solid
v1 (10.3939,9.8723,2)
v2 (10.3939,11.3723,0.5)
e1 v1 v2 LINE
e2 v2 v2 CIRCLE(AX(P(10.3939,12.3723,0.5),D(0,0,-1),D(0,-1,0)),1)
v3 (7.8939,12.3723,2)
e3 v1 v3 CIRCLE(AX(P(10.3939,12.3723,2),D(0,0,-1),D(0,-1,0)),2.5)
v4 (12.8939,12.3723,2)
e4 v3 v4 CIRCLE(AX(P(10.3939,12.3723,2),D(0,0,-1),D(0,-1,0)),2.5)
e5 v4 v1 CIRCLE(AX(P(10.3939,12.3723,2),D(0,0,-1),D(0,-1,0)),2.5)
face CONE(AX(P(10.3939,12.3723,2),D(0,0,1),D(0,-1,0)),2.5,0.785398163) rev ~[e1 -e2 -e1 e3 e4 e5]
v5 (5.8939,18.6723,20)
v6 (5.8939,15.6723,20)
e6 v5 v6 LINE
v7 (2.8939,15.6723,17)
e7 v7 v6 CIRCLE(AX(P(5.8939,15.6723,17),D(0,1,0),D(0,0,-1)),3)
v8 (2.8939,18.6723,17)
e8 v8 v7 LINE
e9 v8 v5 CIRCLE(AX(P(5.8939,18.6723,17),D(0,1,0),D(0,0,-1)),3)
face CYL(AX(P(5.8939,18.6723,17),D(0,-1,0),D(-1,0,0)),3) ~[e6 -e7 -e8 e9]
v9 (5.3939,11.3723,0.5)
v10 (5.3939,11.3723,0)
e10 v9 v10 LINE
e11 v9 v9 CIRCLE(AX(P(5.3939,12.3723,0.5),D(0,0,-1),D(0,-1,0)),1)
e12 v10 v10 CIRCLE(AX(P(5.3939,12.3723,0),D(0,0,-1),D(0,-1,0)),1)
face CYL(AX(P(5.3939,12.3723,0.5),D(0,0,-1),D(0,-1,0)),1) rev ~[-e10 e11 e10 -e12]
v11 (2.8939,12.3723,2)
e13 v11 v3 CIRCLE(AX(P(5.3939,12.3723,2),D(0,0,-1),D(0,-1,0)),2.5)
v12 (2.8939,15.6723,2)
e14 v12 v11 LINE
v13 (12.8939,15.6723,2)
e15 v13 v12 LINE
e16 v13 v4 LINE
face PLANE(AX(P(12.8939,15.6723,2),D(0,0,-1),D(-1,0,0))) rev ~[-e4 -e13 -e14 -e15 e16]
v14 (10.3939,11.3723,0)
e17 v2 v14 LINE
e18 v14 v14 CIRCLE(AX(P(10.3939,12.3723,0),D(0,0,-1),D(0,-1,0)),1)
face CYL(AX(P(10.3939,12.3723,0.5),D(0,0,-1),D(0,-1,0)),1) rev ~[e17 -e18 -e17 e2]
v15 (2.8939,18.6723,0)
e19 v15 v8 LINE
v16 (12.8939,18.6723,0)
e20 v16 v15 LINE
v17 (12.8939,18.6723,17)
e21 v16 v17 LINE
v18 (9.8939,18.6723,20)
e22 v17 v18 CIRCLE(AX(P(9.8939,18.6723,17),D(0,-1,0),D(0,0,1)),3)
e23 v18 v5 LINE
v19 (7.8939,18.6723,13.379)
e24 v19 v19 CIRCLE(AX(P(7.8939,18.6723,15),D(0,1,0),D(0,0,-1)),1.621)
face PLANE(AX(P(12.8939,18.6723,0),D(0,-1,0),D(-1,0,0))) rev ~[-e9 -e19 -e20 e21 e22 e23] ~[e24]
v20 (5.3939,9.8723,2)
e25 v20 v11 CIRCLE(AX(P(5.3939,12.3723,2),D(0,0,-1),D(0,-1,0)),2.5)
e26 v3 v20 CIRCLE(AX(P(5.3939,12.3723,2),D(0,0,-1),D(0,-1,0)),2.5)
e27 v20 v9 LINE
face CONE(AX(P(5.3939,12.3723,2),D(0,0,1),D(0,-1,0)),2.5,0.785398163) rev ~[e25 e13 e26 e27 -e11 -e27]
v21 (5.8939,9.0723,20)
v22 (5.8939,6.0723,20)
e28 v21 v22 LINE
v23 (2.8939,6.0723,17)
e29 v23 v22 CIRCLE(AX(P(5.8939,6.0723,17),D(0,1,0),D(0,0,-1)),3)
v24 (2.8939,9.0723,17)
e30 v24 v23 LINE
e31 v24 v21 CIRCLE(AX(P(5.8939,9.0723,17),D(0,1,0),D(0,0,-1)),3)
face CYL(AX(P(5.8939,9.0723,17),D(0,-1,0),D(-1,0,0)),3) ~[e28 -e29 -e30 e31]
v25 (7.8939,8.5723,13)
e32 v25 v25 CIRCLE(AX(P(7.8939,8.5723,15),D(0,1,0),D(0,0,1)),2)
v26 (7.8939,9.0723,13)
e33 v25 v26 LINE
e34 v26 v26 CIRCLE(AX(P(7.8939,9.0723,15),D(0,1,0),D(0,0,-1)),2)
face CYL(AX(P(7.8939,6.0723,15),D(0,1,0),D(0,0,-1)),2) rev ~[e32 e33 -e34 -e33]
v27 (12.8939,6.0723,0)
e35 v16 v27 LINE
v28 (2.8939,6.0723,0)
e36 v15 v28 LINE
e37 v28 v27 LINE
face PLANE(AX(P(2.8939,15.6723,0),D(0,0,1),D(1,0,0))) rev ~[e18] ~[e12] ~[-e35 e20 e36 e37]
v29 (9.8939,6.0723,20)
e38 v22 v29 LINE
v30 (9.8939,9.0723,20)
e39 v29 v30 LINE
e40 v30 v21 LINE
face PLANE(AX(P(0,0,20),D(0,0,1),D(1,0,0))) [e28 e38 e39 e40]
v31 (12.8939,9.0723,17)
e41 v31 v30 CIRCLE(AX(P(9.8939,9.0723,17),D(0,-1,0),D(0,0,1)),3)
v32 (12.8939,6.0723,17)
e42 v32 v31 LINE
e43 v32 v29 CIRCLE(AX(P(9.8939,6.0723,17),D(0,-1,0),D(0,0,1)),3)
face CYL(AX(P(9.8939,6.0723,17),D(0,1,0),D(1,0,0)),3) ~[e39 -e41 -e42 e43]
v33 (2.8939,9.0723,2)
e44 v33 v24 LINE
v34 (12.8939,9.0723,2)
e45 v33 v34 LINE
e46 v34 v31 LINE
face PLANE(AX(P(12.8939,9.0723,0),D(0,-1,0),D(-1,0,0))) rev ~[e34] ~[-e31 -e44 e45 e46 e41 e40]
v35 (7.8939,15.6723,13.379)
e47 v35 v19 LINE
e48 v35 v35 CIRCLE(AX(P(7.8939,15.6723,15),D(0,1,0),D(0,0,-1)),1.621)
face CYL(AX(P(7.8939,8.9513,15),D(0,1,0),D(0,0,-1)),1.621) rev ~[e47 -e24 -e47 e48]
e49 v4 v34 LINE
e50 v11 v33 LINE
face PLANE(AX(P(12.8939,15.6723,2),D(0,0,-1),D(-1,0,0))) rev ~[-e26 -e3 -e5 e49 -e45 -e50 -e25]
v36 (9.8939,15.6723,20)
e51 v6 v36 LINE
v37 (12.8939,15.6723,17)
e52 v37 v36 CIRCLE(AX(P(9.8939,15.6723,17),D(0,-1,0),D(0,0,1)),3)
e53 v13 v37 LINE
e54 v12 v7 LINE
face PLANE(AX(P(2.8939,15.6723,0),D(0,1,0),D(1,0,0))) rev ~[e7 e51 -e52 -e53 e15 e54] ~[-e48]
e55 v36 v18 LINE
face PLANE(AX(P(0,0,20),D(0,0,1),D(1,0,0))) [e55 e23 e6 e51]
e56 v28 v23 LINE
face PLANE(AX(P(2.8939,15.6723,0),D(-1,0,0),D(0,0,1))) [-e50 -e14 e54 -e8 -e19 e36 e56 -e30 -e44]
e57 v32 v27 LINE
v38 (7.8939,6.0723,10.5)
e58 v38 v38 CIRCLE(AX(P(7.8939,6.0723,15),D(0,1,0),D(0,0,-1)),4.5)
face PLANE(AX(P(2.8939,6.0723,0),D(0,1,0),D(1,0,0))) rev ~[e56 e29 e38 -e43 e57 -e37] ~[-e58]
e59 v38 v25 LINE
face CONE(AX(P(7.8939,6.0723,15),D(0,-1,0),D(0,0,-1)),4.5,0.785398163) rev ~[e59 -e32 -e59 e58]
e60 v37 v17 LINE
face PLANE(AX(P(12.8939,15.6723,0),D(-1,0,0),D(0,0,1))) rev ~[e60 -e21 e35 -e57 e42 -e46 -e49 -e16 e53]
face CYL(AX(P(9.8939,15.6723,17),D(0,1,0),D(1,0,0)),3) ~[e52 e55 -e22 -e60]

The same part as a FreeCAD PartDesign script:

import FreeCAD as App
import Part
import Sketcher


def edges_at(feature, points):
    """Names of the edges that pass closest to the given points."""
    edges = feature.Shape.Edges
    near = lambda p: min(range(len(edges)), key=lambda i: edges[i].distToShape(Part.Vertex(*p))[0])
    return sorted({f"Edge{near(p) + 1}" for p in points})

doc = App.newDocument("Part")
body = doc.addObject("PartDesign::Body", "Body")
body.AllowCompound = True

# Sketch on XY plane
sketch1 = doc.addObject("Sketcher::SketchObject", "Sketch")
body.addObject(sketch1)
sketch1.AttachmentSupport = (doc.XY_Plane, [""])
sketch1.MapMode = "FlatFace"
sketch1.addGeometry(Part.LineSegment(App.Vector(12.9, 15.7, 0), App.Vector(12.9, 18.7, 0)), False)
sketch1.addGeometry(Part.LineSegment(App.Vector(12.9, 18.7, 0), App.Vector(2.9, 18.7, 0)), False)
sketch1.addGeometry(Part.LineSegment(App.Vector(2.9, 18.7, 0), App.Vector(2.9, 15.7, 0)), False)
sketch1.addGeometry(Part.LineSegment(App.Vector(2.9, 15.7, 0), App.Vector(12.9, 15.7, 0)), False)
sketch1.addGeometry(Part.LineSegment(App.Vector(12.9, 6.1, 0), App.Vector(12.9, 9.1, 0)), False)
sketch1.addGeometry(Part.LineSegment(App.Vector(12.9, 9.1, 0), App.Vector(2.9, 9.1, 0)), False)
sketch1.addGeometry(Part.LineSegment(App.Vector(2.9, 9.1, 0), App.Vector(2.9, 6.1, 0)), False)
sketch1.addGeometry(Part.LineSegment(App.Vector(2.9, 6.1, 0), App.Vector(12.9, 6.1, 0)), False)
sketch1.addConstraint(Sketcher.Constraint("Coincident", 0, 2, 1, 1))
sketch1.addConstraint(Sketcher.Constraint("Coincident", 1, 2, 2, 1))
sketch1.addConstraint(Sketcher.Constraint("Coincident", 2, 2, 3, 1))
sketch1.addConstraint(Sketcher.Constraint("Coincident", 3, 2, 0, 1))
sketch1.addConstraint(Sketcher.Constraint("Coincident", 4, 2, 5, 1))
sketch1.addConstraint(Sketcher.Constraint("Coincident", 5, 2, 6, 1))
sketch1.addConstraint(Sketcher.Constraint("Coincident", 6, 2, 7, 1))
sketch1.addConstraint(Sketcher.Constraint("Coincident", 7, 2, 4, 1))
sketch1.addConstraint(Sketcher.Constraint("Vertical", 0))
sketch1.addConstraint(Sketcher.Constraint("Horizontal", 1))
sketch1.addConstraint(Sketcher.Constraint("Vertical", 2))
sketch1.addConstraint(Sketcher.Constraint("Horizontal", 3))
sketch1.addConstraint(Sketcher.Constraint("Vertical", 4))
sketch1.addConstraint(Sketcher.Constraint("Horizontal", 5))
sketch1.addConstraint(Sketcher.Constraint("Vertical", 6))
sketch1.addConstraint(Sketcher.Constraint("Horizontal", 7))
sketch1.addConstraint(Sketcher.Constraint("Vertical", 3, 2, 4, 2))
sketch1.addConstraint(Sketcher.Constraint("Vertical", 2, 2, 5, 2))
sketch1.addConstraint(Sketcher.Constraint("Equal", 2, 4))
sketch1.addConstraint(Sketcher.Constraint("DistanceX", 1, 2, 1, 1, 10.0))
sketch1.addConstraint(Sketcher.Constraint("DistanceY", 0, 1, 0, 2, 3.0))
sketch1.addConstraint(Sketcher.Constraint("DistanceY", 4, 2, 3, 2, 6.6))
sketch1.addConstraint(Sketcher.Constraint("DistanceX", -1, 1, 0, 2, 12.894))
sketch1.addConstraint(Sketcher.Constraint("DistanceY", -1, 1, 0, 2, 18.6723))
pad1 = doc.addObject("PartDesign::Pad", "Pad")
body.addObject(pad1)
pad1.Profile = sketch1
pad1.Length = 20
doc.recompute()

fillet = doc.addObject("PartDesign::Fillet", "Fillet")
body.addObject(fillet)
fillet.Base = (pad1, edges_at(pad1, [
    (12.894, 7.572, 20),
    (12.894, 17.172, 20),
    (2.894, 17.172, 20),
    (2.894, 7.572, 20),
]))
fillet.Radius = 3

# Sketch on XZ plane
sketch2 = doc.addObject("Sketcher::SketchObject", "Sketch001")
body.addObject(sketch2)
sketch2.AttachmentSupport = (doc.XZ_Plane, [""])
sketch2.MapMode = "FlatFace"
sketch2.AttachmentOffset = App.Placement(App.Vector(0, 0, -6.0723), App.Rotation())
sketch2.addGeometry(Part.Circle(App.Vector(7.9, 15, 0), App.Vector(0, 0, 1), 1.6), False)
sketch2.addConstraint(Sketcher.Constraint("Diameter", 0, 3.242))
sketch2.addConstraint(Sketcher.Constraint("DistanceY", -1, 1, 0, 3, 15.0))
sketch2.addConstraint(Sketcher.Constraint("DistanceX", -1, 1, 0, 3, 7.894))
doc.recompute()
hole = doc.addObject("PartDesign::Hole", "Hole")
body.addObject(hole)
hole.Profile = sketch2
hole.ThreadType = "None"
hole.Diameter = 3.242
hole.DepthType = "ThroughAll"
hole.HoleCutType = "Countersink"
hole.HoleCutDiameter = 9
hole.HoleCutCountersinkAngle = 90

# Sketch on XZ plane
sketch3 = doc.addObject("Sketcher::SketchObject", "Sketch002")
body.addObject(sketch3)
sketch3.AttachmentSupport = (doc.XZ_Plane, [""])
sketch3.MapMode = "FlatFace"
sketch3.AttachmentOffset = App.Placement(App.Vector(0, 0, -15.6723), App.Rotation())
sketch3.addGeometry(Part.LineSegment(App.Vector(2.9, 2, 0), App.Vector(2.9, 0, 0)), False)
sketch3.addGeometry(Part.LineSegment(App.Vector(2.9, 0, 0), App.Vector(12.9, 0, 0)), False)
sketch3.addGeometry(Part.LineSegment(App.Vector(12.9, 0, 0), App.Vector(12.9, 2, 0)), False)
sketch3.addGeometry(Part.LineSegment(App.Vector(12.9, 2, 0), App.Vector(2.9, 2, 0)), False)
sketch3.addConstraint(Sketcher.Constraint("Coincident", 0, 2, 1, 1))
sketch3.addConstraint(Sketcher.Constraint("Coincident", 1, 2, 2, 1))
sketch3.addConstraint(Sketcher.Constraint("Coincident", 2, 2, 3, 1))
sketch3.addConstraint(Sketcher.Constraint("Coincident", 3, 2, 0, 1))
sketch3.addConstraint(Sketcher.Constraint("Vertical", 0))
sketch3.addConstraint(Sketcher.Constraint("Horizontal", 1))
sketch3.addConstraint(Sketcher.Constraint("Vertical", 2))
sketch3.addConstraint(Sketcher.Constraint("Horizontal", 3))
sketch3.addConstraint(Sketcher.Constraint("PointOnObject", 0, 2, -1))
sketch3.addConstraint(Sketcher.Constraint("DistanceY", 0, 2, 0, 1, 2.0))
sketch3.addConstraint(Sketcher.Constraint("DistanceX", 1, 1, 1, 2, 10.0))
sketch3.addConstraint(Sketcher.Constraint("DistanceX", -1, 1, 0, 2, 2.894))
pad2 = doc.addObject("PartDesign::Pad", "Pad001")
body.addObject(pad2)
pad2.Profile = sketch3
pad2.Type = "UpToLast"

# Sketch on XY plane
sketch4 = doc.addObject("Sketcher::SketchObject", "Sketch003")
body.addObject(sketch4)
sketch4.AttachmentSupport = (doc.XY_Plane, [""])
sketch4.MapMode = "FlatFace"
sketch4.AttachmentOffset = App.Placement(App.Vector(0, 0, 2), App.Rotation())
sketch4.addGeometry(Part.Circle(App.Vector(10.4, 12.4, 0), App.Vector(0, 0, 1), 1), False)
sketch4.addGeometry(Part.Circle(App.Vector(5.4, 12.4, 0), App.Vector(0, 0, 1), 1), False)
sketch4.addConstraint(Sketcher.Constraint("Equal", 0, 1))
sketch4.addConstraint(Sketcher.Constraint("Horizontal", 0, 3, 1, 3))
sketch4.addConstraint(Sketcher.Constraint("Diameter", 0, 2.0))
sketch4.addConstraint(Sketcher.Constraint("DistanceX", 1, 3, 0, 3, 5.0))
sketch4.addConstraint(Sketcher.Constraint("DistanceX", -1, 1, 0, 3, 10.394))
sketch4.addConstraint(Sketcher.Constraint("DistanceY", -1, 1, 0, 3, 12.3723))
doc.recompute()
hole2 = doc.addObject("PartDesign::Hole", "Hole001")
body.addObject(hole2)
hole2.Profile = sketch4
hole2.ThreadType = "None"
hole2.Diameter = 2
hole2.DepthType = "ThroughAll"
hole2.HoleCutType = "Countersink"
hole2.HoleCutDiameter = 5
hole2.HoleCutCountersinkAngle = 90

# Sketch on XZ plane
sketch5 = doc.addObject("Sketcher::SketchObject", "Sketch004")
body.addObject(sketch5)
sketch5.AttachmentSupport = (doc.XZ_Plane, [""])
sketch5.MapMode = "FlatFace"
sketch5.AttachmentOffset = App.Placement(App.Vector(0, 0, -6.0723), App.Rotation())
sketch5.addGeometry(Part.Circle(App.Vector(7.9, 15, 0), App.Vector(0, 0, 1), 2), False)
sketch5.addConstraint(Sketcher.Constraint("Diameter", 0, 4.0))
sketch5.addConstraint(Sketcher.Constraint("DistanceY", -1, 1, 0, 3, 15.0))
sketch5.addConstraint(Sketcher.Constraint("DistanceX", -1, 1, 0, 3, 7.894))
doc.recompute()
hole3 = doc.addObject("PartDesign::Hole", "Hole002")
body.addObject(hole3)
hole3.Profile = sketch5
hole3.ThreadType = "None"
hole3.Diameter = 4
hole3.DepthType = "Dimension"
hole3.Depth = 3
hole3.DrillPoint = "Flat"

doc.recompute()
